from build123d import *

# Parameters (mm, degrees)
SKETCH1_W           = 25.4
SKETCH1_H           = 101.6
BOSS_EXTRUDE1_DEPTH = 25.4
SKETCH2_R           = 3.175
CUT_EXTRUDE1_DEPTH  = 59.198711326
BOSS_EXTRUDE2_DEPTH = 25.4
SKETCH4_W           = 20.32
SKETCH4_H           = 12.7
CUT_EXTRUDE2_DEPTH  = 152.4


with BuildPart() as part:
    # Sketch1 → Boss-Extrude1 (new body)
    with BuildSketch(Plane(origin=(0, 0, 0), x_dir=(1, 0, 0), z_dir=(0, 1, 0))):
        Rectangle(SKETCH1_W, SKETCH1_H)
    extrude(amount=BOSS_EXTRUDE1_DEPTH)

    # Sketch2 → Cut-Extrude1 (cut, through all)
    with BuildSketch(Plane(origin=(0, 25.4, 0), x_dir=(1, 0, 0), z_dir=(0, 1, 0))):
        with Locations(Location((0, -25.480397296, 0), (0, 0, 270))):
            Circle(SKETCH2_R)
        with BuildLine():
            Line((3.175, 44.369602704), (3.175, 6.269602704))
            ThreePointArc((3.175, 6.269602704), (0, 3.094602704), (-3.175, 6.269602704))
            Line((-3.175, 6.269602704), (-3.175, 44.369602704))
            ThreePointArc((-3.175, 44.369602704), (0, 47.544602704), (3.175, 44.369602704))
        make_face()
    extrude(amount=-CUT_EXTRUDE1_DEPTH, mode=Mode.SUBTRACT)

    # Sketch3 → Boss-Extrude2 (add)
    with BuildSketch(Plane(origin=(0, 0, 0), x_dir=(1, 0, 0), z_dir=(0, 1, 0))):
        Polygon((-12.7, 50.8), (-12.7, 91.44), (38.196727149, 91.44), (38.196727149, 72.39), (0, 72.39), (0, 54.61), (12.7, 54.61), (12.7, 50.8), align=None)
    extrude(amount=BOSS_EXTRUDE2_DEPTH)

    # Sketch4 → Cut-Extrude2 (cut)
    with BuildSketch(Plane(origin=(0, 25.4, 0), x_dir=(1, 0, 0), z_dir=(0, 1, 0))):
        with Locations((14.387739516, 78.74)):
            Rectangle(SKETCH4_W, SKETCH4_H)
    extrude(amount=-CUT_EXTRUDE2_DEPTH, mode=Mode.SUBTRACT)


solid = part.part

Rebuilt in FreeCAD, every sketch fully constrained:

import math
import FreeCAD as App
import Part
import Sketcher

V = App.Vector
Q = App.Units.Quantity


def add_polygon(sketch, points):
    """Adds a closed chain of lines whose ends are joined by coincident constraints."""
    first, n = sketch.GeometryCount, len(points)
    for a, b in zip(points, points[1:] + points[:1]):
        sketch.addGeometry(Part.LineSegment(App.Vector(*a, 0), App.Vector(*b, 0)), False)
    for i in range(n):
        sketch.addConstraint(Sketcher.Constraint("Coincident", first + i, 2, first + (i + 1) % n, 1))

doc = App.newDocument("Part")
body = doc.addObject("PartDesign::Body", "Body")

sketch1 = body.newObject("Sketcher::SketchObject", "Sketch")
sketch1.AttachmentSupport = (doc.getObject("XZ_Plane"), [""])
sketch1.MapMode = "FlatFace"
add_polygon(sketch1, [(-12.7, -50.8), (-12.7, 50.8), (12.7, 50.8), (12.7, -50.8)])
sketch1.addConstraint([
    Sketcher.Constraint("Vertical", 0),
    Sketcher.Constraint("Horizontal", 1),
    Sketcher.Constraint("Vertical", 2),
    Sketcher.Constraint("Horizontal", 3),
    Sketcher.Constraint("Symmetric", 0, 2, 2, 2, -1, 1),
    Sketcher.Constraint("DistanceX", 1, 1, 1, 2, Q("1 in")),
    Sketcher.Constraint("DistanceY", 0, 1, 0, 2, Q("4 in")),
])
pad1 = body.newObject("PartDesign::Pad", "Pad")
pad1.Profile = sketch1
pad1.Length = Q("1 in")
pad1.Reversed = True

sketch2 = body.newObject("Sketcher::SketchObject", "Sketch001")
sketch2.AttachmentSupport = (doc.getObject("XZ_Plane"), [""])
sketch2.MapMode = "FlatFace"
sketch2.AttachmentOffset = App.Placement(V(0, 0, -1 * 25.4), App.Rotation())
sketch2.addGeometry([
    Part.Circle(V(0, 25.480397, 0), V(0, 0, 1), 3.175),
    Part.LineSegment(V(3.175, -6.269603, 0), V(3.175, -44.369603, 0)),
    Part.ArcOfCircle(Part.Circle(V(0, -44.369603, 0), V(0, 0, 1), 3.175), math.radians(180), math.radians(360)),
    Part.LineSegment(V(-3.175, -44.369603, 0), V(-3.175, -6.269603, 0)),
    Part.ArcOfCircle(Part.Circle(V(0, -6.269603, 0), V(0, 0, 1), 3.175), math.radians(0), math.radians(180)),
], False)
sketch2.addConstraint([
    Sketcher.Constraint("Tangent", 1, 2, 2, 2),
    Sketcher.Constraint("Tangent", 2, 1, 3, 1),
    Sketcher.Constraint("Tangent", 3, 2, 4, 2),
    Sketcher.Constraint("Tangent", 4, 1, 1, 1),
    Sketcher.Constraint("Vertical", 1),
    Sketcher.Constraint("Vertical", 3),
    Sketcher.Constraint("Equal", 0, 2),
    Sketcher.Constraint("PointOnObject", 0, 3, -2),
    Sketcher.Constraint("PointOnObject", 2, 3, -2),
    Sketcher.Constraint("Diameter", 0, Q("0.25 in")),
    Sketcher.Constraint("DistanceY", 1, 2, 1, 1, Q("1.5 in")),
    Sketcher.Constraint("DistanceY", 2, 3, 0, 3, Q("2.75 in")),
    Sketcher.Constraint("DistanceY", -1, 1, 0, 3, Q("25.480397 mm")),
])
pocket1 = body.newObject("PartDesign::Pocket", "Pocket")
pocket1.Profile = sketch2
pocket1.Type = "ThroughAll"
pocket1.Reversed = True

sketch3 = body.newObject("Sketcher::SketchObject", "Sketch002")
sketch3.AttachmentSupport = (doc.getObject("XZ_Plane"), [""])
sketch3.MapMode = "FlatFace"
add_polygon(sketch3, [(-12.7, -91.44), (-12.7, -50.8), (12.7, -50.8), (12.7, -54.61), (0, -54.61), (0, -72.39), (38.196727, -72.39), (38.196727, -91.44)])
sketch3.addConstraint([
    Sketcher.Constraint("Vertical", 0),
    Sketcher.Constraint("Horizontal", 1),
    Sketcher.Constraint("Vertical", 2),
    Sketcher.Constraint("Horizontal", 3),
    Sketcher.Constraint("Vertical", 4),
    Sketcher.Constraint("Horizontal", 5),
    Sketcher.Constraint("Vertical", 6),
    Sketcher.Constraint("Horizontal", 7),
    Sketcher.Constraint("PointOnObject", 3, 2, -2),
    Sketcher.Constraint("DistanceX", 1, 1, 1, 2, Q("1 in")),
    Sketcher.Constraint("DistanceX", 3, 2, 3, 1, Q("0.5 in")),
    Sketcher.Constraint("DistanceY", 0, 1, 0, 2, Q("1.6 in")),
    Sketcher.Constraint("DistanceY", 4, 2, 4, 1, Q("0.7 in")),
    Sketcher.Constraint("DistanceY", 0, 2, -1, 1, Q("2 in")),
    Sketcher.Constraint("DistanceY", 2, 2, 2, 1, Q("0.15 in")),
    Sketcher.Constraint("DistanceX", 5, 1, 5, 2, Q("38.196727 mm")),
])
pad2 = body.newObject("PartDesign::Pad", "Pad001")
pad2.Profile = sketch3
pad2.Length = Q("1 in")
pad2.Reversed = True

sketch4 = body.newObject("Sketcher::SketchObject", "Sketch003")
sketch4.AttachmentSupport = (doc.getObject("XZ_Plane"), [""])
sketch4.MapMode = "FlatFace"
sketch4.AttachmentOffset = App.Placement(V(0, 0, -1 * 25.4), App.Rotation())
add_polygon(sketch4, [(4.22774, -85.09), (4.22774, -72.39), (24.54774, -72.39), (24.54774, -85.09)])
sketch4.addConstraint([
    Sketcher.Constraint("Vertical", 0),
    Sketcher.Constraint("Horizontal", 1),
    Sketcher.Constraint("Vertical", 2),
    Sketcher.Constraint("Horizontal", 3),
    Sketcher.Constraint("DistanceX", 1, 1, 1, 2, Q("0.8 in")),
    Sketcher.Constraint("DistanceY", 0, 1, 0, 2, Q("0.5 in")),
    Sketcher.Constraint("DistanceY", 0, 2, -1, 1, Q("2.85 in")),
    Sketcher.Constraint("DistanceX", -1, 1, 0, 2, Q("4.22774 mm")),
])
pocket2 = body.newObject("PartDesign::Pocket", "Pocket001")
pocket2.Profile = sketch4
pocket2.Length = Q("6 in")
pocket2.Reversed = True

doc.recompute()
